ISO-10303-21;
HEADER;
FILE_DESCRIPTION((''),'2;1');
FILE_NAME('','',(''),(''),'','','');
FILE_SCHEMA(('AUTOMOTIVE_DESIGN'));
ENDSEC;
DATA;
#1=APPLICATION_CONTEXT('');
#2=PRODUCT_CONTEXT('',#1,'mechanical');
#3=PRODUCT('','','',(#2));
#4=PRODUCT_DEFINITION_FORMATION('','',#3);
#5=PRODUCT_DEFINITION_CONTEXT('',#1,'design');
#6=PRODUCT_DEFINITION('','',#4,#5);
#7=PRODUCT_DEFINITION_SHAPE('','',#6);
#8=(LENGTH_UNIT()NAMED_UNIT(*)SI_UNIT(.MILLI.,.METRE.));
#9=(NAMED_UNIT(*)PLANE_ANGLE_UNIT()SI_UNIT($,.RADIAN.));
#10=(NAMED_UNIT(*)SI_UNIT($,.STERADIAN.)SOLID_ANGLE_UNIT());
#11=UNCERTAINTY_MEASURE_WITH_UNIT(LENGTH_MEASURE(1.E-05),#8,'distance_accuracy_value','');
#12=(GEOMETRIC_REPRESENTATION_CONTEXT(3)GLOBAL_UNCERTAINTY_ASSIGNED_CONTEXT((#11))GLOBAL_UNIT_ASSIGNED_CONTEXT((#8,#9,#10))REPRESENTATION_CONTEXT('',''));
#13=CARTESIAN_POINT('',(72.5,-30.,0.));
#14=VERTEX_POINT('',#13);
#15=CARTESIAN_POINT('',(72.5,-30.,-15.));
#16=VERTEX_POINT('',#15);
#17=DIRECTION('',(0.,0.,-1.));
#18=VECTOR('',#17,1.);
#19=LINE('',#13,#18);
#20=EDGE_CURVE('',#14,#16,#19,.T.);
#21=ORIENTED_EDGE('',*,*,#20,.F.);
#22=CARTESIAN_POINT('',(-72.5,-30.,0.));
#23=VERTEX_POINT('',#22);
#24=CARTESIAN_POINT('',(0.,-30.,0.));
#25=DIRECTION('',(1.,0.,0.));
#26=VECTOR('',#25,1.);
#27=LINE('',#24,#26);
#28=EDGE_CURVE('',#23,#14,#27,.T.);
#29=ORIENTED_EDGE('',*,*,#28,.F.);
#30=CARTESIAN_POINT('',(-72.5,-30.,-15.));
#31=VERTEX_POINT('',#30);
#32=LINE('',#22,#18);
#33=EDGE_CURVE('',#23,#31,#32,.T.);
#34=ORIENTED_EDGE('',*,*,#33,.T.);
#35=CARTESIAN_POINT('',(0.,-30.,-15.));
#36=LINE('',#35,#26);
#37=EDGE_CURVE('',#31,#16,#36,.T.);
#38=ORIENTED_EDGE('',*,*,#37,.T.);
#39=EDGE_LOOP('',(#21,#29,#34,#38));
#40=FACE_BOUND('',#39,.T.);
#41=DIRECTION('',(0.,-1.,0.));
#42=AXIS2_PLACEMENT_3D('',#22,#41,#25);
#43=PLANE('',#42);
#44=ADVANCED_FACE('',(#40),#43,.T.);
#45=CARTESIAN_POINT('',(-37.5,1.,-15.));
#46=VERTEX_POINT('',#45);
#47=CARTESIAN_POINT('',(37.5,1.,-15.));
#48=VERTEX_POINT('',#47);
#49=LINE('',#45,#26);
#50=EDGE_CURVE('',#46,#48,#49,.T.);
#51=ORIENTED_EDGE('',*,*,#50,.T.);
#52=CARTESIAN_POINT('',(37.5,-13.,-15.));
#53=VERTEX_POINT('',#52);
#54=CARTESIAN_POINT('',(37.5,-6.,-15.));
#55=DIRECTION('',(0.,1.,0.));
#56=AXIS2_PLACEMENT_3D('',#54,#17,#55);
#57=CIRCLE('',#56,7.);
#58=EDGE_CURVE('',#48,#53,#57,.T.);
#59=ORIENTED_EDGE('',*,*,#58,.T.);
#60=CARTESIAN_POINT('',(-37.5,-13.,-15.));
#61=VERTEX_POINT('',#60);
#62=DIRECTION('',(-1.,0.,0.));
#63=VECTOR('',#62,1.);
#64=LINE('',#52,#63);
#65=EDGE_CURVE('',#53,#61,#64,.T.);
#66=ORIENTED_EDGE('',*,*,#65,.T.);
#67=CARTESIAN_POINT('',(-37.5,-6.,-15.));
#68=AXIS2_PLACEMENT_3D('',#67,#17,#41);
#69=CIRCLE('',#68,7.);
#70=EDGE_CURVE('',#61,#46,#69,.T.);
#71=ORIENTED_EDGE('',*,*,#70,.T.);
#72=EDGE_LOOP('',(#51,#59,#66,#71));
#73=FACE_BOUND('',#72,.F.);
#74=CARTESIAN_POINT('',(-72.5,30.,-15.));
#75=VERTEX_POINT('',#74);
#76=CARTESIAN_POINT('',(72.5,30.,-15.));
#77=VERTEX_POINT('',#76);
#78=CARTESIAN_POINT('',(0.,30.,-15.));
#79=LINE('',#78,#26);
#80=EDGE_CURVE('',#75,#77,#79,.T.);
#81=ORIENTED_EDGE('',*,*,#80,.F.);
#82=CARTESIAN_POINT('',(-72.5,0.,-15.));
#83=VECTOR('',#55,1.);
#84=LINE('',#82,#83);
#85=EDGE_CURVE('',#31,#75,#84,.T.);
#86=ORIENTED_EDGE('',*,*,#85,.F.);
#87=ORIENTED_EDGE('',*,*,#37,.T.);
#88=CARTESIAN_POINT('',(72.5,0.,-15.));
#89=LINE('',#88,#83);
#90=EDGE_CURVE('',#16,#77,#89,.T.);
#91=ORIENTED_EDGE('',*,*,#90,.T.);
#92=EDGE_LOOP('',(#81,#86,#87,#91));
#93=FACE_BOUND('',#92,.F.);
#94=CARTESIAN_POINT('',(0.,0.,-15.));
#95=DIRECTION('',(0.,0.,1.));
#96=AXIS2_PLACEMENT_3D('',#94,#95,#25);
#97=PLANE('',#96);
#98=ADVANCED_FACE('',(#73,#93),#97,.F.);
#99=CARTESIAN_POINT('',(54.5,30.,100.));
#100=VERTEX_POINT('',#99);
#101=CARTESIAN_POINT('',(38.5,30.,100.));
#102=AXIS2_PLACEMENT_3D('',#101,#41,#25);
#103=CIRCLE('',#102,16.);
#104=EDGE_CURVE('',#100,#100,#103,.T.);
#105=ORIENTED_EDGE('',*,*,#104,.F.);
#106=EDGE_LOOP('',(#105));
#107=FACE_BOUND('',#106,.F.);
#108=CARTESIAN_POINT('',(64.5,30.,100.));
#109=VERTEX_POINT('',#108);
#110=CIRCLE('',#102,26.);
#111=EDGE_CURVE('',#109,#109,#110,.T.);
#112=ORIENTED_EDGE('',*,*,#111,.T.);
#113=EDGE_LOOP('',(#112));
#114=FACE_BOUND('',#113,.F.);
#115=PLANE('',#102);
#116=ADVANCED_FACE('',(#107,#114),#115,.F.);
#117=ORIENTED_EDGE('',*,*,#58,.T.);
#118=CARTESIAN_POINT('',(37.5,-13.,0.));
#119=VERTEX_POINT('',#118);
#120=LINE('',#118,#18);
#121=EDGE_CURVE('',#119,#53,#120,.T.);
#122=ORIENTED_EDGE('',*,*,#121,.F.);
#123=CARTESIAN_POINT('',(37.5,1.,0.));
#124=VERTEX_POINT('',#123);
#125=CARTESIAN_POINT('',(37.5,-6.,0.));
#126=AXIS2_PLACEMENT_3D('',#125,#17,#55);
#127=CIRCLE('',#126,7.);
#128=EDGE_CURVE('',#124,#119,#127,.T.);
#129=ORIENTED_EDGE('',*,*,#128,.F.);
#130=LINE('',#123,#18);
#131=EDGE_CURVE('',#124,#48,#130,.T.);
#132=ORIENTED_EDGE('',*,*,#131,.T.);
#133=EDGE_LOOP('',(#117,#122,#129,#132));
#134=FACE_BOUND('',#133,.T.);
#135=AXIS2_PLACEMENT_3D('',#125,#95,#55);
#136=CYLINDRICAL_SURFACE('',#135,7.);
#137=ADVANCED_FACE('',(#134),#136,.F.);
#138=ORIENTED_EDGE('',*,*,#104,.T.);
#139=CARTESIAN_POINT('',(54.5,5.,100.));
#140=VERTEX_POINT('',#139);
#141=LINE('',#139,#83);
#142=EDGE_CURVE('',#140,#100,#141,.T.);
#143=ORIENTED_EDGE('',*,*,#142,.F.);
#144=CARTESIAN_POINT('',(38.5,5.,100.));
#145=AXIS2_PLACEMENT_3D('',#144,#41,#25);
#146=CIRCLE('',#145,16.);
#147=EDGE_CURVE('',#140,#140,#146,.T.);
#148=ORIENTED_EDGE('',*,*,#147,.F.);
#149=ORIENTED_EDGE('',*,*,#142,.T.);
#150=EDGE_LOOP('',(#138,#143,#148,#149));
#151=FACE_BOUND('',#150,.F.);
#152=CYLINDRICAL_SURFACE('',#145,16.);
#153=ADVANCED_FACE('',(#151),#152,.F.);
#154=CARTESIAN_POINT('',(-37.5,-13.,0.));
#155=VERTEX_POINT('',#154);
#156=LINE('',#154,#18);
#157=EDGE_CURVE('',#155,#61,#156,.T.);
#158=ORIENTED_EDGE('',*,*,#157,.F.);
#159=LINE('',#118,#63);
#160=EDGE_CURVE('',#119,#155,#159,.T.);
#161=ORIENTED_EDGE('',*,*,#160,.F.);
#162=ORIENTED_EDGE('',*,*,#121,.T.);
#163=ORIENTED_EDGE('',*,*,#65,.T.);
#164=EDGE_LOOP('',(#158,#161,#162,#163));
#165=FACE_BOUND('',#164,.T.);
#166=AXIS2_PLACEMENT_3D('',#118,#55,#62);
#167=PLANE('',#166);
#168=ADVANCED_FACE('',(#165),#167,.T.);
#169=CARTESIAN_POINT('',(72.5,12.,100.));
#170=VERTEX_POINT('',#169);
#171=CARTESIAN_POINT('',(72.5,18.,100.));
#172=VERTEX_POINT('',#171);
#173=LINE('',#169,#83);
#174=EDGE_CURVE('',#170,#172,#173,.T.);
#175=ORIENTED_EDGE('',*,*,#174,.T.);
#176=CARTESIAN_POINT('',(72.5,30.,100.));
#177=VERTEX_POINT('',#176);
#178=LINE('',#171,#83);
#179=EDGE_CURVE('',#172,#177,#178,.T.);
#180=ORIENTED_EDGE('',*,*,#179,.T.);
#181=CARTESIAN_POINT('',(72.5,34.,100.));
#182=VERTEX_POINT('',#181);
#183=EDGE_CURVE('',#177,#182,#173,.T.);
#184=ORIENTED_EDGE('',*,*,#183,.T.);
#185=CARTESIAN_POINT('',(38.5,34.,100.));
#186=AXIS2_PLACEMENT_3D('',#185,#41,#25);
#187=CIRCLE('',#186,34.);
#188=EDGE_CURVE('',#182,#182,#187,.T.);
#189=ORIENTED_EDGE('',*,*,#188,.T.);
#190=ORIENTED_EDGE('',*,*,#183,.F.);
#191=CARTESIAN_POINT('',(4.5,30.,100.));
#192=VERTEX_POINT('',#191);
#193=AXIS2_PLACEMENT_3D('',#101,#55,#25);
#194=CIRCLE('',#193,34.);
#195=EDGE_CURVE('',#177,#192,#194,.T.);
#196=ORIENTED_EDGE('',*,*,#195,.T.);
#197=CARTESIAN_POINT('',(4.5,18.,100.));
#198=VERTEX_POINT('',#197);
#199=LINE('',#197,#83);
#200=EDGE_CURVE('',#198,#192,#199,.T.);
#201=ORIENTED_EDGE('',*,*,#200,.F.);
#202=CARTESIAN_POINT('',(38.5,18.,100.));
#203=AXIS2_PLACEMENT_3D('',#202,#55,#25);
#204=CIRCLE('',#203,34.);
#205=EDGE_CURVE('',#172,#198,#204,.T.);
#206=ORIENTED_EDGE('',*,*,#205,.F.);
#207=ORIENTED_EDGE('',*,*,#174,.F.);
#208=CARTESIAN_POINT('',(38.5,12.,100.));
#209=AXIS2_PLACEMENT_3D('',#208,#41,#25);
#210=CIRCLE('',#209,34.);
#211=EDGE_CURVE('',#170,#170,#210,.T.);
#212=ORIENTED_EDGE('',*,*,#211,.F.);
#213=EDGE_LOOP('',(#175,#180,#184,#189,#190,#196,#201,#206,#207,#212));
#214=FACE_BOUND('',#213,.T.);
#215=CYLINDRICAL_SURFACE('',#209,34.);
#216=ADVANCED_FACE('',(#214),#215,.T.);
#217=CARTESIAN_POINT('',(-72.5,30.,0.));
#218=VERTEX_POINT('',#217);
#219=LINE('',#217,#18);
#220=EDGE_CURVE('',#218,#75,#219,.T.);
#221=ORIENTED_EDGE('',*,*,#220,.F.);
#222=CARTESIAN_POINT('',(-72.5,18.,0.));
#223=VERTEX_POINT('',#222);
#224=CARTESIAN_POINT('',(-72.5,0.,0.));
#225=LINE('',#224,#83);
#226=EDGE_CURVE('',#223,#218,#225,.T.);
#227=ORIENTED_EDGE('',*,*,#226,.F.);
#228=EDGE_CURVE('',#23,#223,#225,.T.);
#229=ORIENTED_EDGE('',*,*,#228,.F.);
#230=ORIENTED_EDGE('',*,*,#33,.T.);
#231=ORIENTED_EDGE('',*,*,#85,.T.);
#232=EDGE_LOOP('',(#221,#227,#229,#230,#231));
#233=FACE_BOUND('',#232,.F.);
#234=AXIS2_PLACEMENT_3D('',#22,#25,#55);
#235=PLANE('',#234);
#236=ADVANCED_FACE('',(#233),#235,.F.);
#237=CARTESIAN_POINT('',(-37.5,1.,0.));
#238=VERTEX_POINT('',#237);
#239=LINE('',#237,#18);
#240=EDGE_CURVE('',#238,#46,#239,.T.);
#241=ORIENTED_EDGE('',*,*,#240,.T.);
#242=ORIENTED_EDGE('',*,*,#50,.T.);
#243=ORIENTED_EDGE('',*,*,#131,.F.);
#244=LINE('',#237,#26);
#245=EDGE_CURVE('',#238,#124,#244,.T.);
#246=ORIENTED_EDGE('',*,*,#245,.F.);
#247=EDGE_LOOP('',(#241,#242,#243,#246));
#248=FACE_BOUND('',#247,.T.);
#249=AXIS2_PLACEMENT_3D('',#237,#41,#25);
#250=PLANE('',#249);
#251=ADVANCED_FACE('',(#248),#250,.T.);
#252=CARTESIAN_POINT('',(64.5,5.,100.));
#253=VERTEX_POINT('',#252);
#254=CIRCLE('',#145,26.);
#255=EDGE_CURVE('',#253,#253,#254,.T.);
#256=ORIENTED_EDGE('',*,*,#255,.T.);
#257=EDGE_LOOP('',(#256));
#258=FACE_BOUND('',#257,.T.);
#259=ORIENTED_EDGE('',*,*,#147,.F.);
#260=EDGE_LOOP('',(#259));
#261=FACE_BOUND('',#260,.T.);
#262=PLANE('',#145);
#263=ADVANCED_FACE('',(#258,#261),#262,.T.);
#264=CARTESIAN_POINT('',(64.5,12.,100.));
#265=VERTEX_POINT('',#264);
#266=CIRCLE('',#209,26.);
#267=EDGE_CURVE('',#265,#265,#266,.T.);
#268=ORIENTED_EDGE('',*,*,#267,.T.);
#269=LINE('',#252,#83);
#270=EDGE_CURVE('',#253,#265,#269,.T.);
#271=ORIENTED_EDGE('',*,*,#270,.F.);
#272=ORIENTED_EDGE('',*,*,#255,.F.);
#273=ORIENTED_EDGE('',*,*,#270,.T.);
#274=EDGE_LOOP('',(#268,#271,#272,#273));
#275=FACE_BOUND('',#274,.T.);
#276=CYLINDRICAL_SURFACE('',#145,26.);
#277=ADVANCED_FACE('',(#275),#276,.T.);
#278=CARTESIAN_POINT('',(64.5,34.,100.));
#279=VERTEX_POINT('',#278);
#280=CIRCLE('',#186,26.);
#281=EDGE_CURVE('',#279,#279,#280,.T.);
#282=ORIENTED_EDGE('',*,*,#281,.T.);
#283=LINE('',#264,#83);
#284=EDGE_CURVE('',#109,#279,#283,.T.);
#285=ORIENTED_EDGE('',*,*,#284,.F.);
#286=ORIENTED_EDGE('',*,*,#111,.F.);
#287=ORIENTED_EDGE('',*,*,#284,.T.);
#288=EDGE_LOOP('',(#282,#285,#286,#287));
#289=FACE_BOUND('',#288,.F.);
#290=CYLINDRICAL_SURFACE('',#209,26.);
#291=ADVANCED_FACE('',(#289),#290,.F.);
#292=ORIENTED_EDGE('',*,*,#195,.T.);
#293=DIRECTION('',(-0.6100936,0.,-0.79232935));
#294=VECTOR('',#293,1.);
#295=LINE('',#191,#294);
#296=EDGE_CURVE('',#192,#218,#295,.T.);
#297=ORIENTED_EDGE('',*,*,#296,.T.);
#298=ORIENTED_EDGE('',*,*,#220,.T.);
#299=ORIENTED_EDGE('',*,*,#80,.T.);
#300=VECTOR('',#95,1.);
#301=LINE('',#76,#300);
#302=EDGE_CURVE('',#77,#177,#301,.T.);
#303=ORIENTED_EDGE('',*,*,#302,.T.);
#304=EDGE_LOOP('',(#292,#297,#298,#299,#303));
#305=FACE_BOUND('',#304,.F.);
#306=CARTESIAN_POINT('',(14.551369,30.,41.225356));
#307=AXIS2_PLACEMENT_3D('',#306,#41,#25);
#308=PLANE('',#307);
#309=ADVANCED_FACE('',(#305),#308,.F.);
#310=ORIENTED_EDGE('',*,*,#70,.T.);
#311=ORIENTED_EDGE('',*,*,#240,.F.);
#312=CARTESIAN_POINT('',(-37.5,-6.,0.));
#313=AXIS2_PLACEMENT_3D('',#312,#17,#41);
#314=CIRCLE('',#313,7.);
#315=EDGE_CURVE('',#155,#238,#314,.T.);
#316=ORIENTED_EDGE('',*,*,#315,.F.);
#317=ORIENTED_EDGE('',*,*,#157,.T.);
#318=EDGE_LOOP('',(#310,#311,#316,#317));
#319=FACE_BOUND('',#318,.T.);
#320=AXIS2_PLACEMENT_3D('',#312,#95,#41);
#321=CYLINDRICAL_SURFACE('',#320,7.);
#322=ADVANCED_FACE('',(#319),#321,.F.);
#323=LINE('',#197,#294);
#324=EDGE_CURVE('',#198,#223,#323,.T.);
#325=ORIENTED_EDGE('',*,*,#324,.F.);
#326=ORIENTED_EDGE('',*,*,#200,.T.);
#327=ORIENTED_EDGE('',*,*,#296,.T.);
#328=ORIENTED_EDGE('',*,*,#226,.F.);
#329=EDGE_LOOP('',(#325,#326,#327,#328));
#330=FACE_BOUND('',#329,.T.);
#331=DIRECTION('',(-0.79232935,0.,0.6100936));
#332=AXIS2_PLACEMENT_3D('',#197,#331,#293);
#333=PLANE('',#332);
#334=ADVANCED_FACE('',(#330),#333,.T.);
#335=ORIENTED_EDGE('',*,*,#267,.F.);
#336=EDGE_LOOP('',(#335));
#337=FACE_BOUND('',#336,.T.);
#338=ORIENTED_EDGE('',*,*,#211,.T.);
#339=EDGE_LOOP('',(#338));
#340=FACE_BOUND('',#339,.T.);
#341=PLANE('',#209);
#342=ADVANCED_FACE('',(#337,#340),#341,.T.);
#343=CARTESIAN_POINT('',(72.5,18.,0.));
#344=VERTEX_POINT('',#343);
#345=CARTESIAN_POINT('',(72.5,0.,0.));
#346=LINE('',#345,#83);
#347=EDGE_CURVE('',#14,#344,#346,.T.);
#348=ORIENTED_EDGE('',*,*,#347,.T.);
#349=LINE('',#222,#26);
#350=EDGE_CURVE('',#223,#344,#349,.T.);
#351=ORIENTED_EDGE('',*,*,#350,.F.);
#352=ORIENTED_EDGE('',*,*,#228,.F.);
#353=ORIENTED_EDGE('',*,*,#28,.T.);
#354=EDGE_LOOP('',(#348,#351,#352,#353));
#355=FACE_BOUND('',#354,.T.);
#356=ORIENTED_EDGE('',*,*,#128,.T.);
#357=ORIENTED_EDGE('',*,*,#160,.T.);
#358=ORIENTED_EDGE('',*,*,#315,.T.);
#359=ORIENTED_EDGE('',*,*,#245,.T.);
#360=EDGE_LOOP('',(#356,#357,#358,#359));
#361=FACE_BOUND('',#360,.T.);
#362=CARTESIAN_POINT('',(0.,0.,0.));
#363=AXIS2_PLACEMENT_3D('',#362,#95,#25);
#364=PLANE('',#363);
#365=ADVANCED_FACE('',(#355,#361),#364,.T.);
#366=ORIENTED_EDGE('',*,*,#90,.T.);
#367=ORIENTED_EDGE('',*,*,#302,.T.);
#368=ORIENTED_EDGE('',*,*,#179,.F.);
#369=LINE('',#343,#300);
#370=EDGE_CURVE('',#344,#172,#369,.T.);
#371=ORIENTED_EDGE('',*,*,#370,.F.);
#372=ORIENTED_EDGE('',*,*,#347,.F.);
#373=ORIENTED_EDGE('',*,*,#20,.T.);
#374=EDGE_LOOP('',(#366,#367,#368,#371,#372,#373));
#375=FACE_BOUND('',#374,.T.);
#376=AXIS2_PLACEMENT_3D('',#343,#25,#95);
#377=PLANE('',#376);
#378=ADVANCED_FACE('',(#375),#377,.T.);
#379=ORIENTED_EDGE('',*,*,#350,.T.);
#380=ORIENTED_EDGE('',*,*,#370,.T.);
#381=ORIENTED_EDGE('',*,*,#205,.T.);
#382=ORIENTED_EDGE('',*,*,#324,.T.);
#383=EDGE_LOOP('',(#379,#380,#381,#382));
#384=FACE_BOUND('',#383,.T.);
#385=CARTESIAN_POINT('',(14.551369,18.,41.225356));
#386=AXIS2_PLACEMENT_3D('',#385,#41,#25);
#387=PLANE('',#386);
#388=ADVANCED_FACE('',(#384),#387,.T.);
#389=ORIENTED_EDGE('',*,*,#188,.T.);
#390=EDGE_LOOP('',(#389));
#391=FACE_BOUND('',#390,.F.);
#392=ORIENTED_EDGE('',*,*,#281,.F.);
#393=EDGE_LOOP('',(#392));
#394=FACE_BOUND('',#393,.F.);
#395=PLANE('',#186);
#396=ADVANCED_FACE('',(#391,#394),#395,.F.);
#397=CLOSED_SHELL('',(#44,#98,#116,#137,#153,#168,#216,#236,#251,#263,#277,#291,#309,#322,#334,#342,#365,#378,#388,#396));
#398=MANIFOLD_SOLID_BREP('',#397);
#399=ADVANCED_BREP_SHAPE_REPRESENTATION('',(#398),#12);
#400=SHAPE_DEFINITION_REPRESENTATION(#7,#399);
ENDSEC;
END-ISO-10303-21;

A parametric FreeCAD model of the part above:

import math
import FreeCAD as App
import Part
import Sketcher
Q = App.Units.Quantity


def add_polygon(sketch, points):
    """Adds a closed chain of lines whose ends are joined by coincident constraints."""
    first, n = sketch.GeometryCount, len(points)
    for a, b in zip(points, points[1:] + points[:1]):
        sketch.addGeometry(Part.LineSegment(App.Vector(*a, 0), App.Vector(*b, 0)), False)
    for i in range(n):
        sketch.addConstraint(Sketcher.Constraint("Coincident", first + i, 2, first + (i + 1) % n, 1))

doc = App.newDocument("Part")
params = doc.addObject("Spreadsheet::Sheet", "Params")
for row, (alias, value) in enumerate([
    ("sketch1_radius", "7 mm"),
    ("sketch1_width", "145 mm"),
    ("sketch1_width2", "75 mm"),
    ("sketch1_height", "60 mm"),
    ("pad1_length", "15 mm"),
    ("sketch2_radius", "34 mm"),
    ("sketch2_width", "145 mm"),
    ("sketch2_height", "100 mm"),
    ("pad2_length", "12 mm"),
    ("sketch3_diameter", "68 mm"),
    ("sketch3_diameter2", "52 mm"),
    ("pad3_length", "22 mm"),
    ("sketch4_diameter", "52 mm"),
    ("sketch4_diameter2", "32 mm"),
    ("pad4_length", "25 mm"),
], start=1):
    params.set(f"A{row}", alias)
    params.set(f"B{row}", "=" + value)
    params.setAlias(f"B{row}", alias)

body = doc.addObject("PartDesign::Body", "Body")

# Sketch on XY plane
sketch1 = doc.addObject("Sketcher::SketchObject", "Sketch")
body.addObject(sketch1)
sketch1.AttachmentSupport = (doc.XY_Plane, [""])
sketch1.MapMode = "FlatFace"
add_polygon(sketch1, [(-72, 30), (-72, -30), (72, -30), (72, 30)])  # lines 0-3
sketch1.addGeometry(Part.LineSegment(App.Vector(38, -13, 0), App.Vector(-38, -13, 0)), False)  # 4
sketch1.addGeometry(Part.ArcOfCircle(Part.Circle(App.Vector(-38, -6, 0), App.Vector(0, 0, 1), 7), math.radians(90), math.radians(270)), False)  # 5
sketch1.addGeometry(Part.LineSegment(App.Vector(-38, 1, 0), App.Vector(38, 1, 0)), False)  # 6
sketch1.addGeometry(Part.ArcOfCircle(Part.Circle(App.Vector(38, -6, 0), App.Vector(0, 0, 1), 7), math.radians(-90), math.radians(90)), False)  # 7
sketch1.addConstraint([
    Sketcher.Constraint("Tangent", 4, 2, 5, 2),
    Sketcher.Constraint("Tangent", 5, 1, 6, 1),
    Sketcher.Constraint("Tangent", 6, 2, 7, 2),
    Sketcher.Constraint("Tangent", 7, 1, 4, 1),
    Sketcher.Constraint("Vertical", 0),
    Sketcher.Constraint("Horizontal", 1),
    Sketcher.Constraint("Vertical", 2),
    Sketcher.Constraint("Horizontal", 3),
    Sketcher.Constraint("Horizontal", 4),
    Sketcher.Constraint("Horizontal", 6),
    Sketcher.Constraint("Symmetric", 0, 2, 2, 2, -1, 1),
    Sketcher.Constraint("Radius", 5, Q("7 mm")),
    Sketcher.Constraint("DistanceX", 1, 1, 1, 2, Q("145 mm")),
    Sketcher.Constraint("DistanceX", 4, 2, 4, 1, Q("75 mm")),
    Sketcher.Constraint("DistanceY", 0, 2, 0, 1, Q("60 mm")),
    Sketcher.Constraint("DistanceY", 5, 3, -1, 1, Q("6 mm")),
    Sketcher.Constraint("DistanceX", 0, 2, 5, 3, Q("35 mm")),
])
sketch1.setExpression("Constraints[15]", "Params.sketch1_radius")
sketch1.setExpression("Constraints[16]", "Params.sketch1_width")
sketch1.setExpression("Constraints[17]", "Params.sketch1_width2")
sketch1.setExpression("Constraints[18]", "Params.sketch1_height")
pad1 = doc.addObject("PartDesign::Pad", "Pad")
body.addObject(pad1)
pad1.Profile = sketch1
pad1.setExpression("Length", "Params.pad1_length")
pad1.Reversed = True

# Sketch on XZ plane
sketch2 = doc.addObject("Sketcher::SketchObject", "Sketch001")
body.addObject(sketch2)
sketch2.AttachmentSupport = (doc.XZ_Plane, [""])
sketch2.MapMode = "FlatFace"
sketch2.AttachmentOffset = App.Placement(App.Vector(0, 0, -18), App.Rotation())
sketch2.addGeometry([
    Part.LineSegment(App.Vector(72, 0, 0), App.Vector(72, 100, 0)),
    Part.ArcOfCircle(Part.Circle(App.Vector(38, 100, 0), App.Vector(0, 0, 1), 34), math.radians(180), math.radians(360)),
    Part.LineSegment(App.Vector(4, 100, 0), App.Vector(-72, 0, 0)),
    Part.LineSegment(App.Vector(-72, 0, 0), App.Vector(72, 0, 0)),
], False)
sketch2.addConstraint([
    Sketcher.Constraint("Tangent", 0, 2, 1, 2),
    Sketcher.Constraint("Coincident", 1, 1, 2, 1),
    Sketcher.Constraint("Coincident", 2, 2, 3, 1),
    Sketcher.Constraint("Coincident", 3, 2, 0, 1),
    Sketcher.Constraint("Vertical", 0),
    Sketcher.Constraint("Horizontal", 3),
    Sketcher.Constraint("Symmetric", 2, 2, 3, 2, -1, 1),
    Sketcher.Constraint("Horizontal", 0, 2, 1, 1),
    Sketcher.Constraint("Radius", 1, Q("34 mm")),
    Sketcher.Constraint("DistanceX", 3, 1, 3, 2, Q("145 mm")),
    Sketcher.Constraint("DistanceY", 0, 1, 0, 2, Q("100 mm")),
])
sketch2.setExpression("Constraints[8]", "Params.sketch2_radius")
sketch2.setExpression("Constraints[9]", "Params.sketch2_width")
sketch2.setExpression("Constraints[10]", "Params.sketch2_height")
pad2 = doc.addObject("PartDesign::Pad", "Pad001")
body.addObject(pad2)
pad2.Profile = sketch2
pad2.setExpression("Length", "Params.pad2_length")
pad2.Reversed = True

# Sketch on XZ plane
sketch3 = doc.addObject("Sketcher::SketchObject", "Sketch002")
body.addObject(sketch3)
sketch3.AttachmentSupport = (doc.XZ_Plane, [""])
sketch3.MapMode = "FlatFace"
sketch3.AttachmentOffset = App.Placement(App.Vector(0, 0, -12), App.Rotation())
sketch3.addGeometry([
    Part.Circle(App.Vector(38, 100, 0), App.Vector(0, 0, 1), 34),
    Part.Circle(App.Vector(38, 100, 0), App.Vector(0, 0, 1), 26),
], False)
sketch3.addConstraint([
    Sketcher.Constraint("Coincident", 1, 3, 0, 3),
    Sketcher.Constraint("Diameter", 0, Q("68 mm")),
    Sketcher.Constraint("Diameter", 1, Q("52 mm")),
    Sketcher.Constraint("DistanceY", -1, 1, 0, 3, Q("100 mm")),
    Sketcher.Constraint("DistanceX", -1, 1, 0, 3, Q("38.5 mm")),
])
sketch3.setExpression("Constraints[1]", "Params.sketch3_diameter")
sketch3.setExpression("Constraints[2]", "Params.sketch3_diameter2")
pad3 = doc.addObject("PartDesign::Pad", "Pad002")
body.addObject(pad3)
pad3.Profile = sketch3
pad3.setExpression("Length", "Params.pad3_length")
pad3.Reversed = True

# Sketch on XZ plane
sketch4 = doc.addObject("Sketcher::SketchObject", "Sketch003")
body.addObject(sketch4)
sketch4.AttachmentSupport = (doc.XZ_Plane, [""])
sketch4.MapMode = "FlatFace"
sketch4.AttachmentOffset = App.Placement(App.Vector(0, 0, -5), App.Rotation())
sketch4.addGeometry([
    Part.Circle(App.Vector(38, 100, 0), App.Vector(0, 0, 1), 26),
    Part.Circle(App.Vector(38, 100, 0), App.Vector(0, 0, 1), 16),
], False)
sketch4.addConstraint([
    Sketcher.Constraint("Coincident", 1, 3, 0, 3),
    Sketcher.Constraint("Diameter", 0, Q("52 mm")),
    Sketcher.Constraint("Diameter", 1, Q("32 mm")),
    Sketcher.Constraint("DistanceY", -1, 1, 0, 3, Q("100 mm")),
    Sketcher.Constraint("DistanceX", -1, 1, 0, 3, Q("38.5 mm")),
])
sketch4.setExpression("Constraints[1]", "Params.sketch4_diameter")
sketch4.setExpression("Constraints[2]", "Params.sketch4_diameter2")
pad4 = doc.addObject("PartDesign::Pad", "Pad003")
body.addObject(pad4)
pad4.Profile = sketch4
pad4.setExpression("Length", "Params.pad4_length")
pad4.Reversed = True

doc.recompute()
